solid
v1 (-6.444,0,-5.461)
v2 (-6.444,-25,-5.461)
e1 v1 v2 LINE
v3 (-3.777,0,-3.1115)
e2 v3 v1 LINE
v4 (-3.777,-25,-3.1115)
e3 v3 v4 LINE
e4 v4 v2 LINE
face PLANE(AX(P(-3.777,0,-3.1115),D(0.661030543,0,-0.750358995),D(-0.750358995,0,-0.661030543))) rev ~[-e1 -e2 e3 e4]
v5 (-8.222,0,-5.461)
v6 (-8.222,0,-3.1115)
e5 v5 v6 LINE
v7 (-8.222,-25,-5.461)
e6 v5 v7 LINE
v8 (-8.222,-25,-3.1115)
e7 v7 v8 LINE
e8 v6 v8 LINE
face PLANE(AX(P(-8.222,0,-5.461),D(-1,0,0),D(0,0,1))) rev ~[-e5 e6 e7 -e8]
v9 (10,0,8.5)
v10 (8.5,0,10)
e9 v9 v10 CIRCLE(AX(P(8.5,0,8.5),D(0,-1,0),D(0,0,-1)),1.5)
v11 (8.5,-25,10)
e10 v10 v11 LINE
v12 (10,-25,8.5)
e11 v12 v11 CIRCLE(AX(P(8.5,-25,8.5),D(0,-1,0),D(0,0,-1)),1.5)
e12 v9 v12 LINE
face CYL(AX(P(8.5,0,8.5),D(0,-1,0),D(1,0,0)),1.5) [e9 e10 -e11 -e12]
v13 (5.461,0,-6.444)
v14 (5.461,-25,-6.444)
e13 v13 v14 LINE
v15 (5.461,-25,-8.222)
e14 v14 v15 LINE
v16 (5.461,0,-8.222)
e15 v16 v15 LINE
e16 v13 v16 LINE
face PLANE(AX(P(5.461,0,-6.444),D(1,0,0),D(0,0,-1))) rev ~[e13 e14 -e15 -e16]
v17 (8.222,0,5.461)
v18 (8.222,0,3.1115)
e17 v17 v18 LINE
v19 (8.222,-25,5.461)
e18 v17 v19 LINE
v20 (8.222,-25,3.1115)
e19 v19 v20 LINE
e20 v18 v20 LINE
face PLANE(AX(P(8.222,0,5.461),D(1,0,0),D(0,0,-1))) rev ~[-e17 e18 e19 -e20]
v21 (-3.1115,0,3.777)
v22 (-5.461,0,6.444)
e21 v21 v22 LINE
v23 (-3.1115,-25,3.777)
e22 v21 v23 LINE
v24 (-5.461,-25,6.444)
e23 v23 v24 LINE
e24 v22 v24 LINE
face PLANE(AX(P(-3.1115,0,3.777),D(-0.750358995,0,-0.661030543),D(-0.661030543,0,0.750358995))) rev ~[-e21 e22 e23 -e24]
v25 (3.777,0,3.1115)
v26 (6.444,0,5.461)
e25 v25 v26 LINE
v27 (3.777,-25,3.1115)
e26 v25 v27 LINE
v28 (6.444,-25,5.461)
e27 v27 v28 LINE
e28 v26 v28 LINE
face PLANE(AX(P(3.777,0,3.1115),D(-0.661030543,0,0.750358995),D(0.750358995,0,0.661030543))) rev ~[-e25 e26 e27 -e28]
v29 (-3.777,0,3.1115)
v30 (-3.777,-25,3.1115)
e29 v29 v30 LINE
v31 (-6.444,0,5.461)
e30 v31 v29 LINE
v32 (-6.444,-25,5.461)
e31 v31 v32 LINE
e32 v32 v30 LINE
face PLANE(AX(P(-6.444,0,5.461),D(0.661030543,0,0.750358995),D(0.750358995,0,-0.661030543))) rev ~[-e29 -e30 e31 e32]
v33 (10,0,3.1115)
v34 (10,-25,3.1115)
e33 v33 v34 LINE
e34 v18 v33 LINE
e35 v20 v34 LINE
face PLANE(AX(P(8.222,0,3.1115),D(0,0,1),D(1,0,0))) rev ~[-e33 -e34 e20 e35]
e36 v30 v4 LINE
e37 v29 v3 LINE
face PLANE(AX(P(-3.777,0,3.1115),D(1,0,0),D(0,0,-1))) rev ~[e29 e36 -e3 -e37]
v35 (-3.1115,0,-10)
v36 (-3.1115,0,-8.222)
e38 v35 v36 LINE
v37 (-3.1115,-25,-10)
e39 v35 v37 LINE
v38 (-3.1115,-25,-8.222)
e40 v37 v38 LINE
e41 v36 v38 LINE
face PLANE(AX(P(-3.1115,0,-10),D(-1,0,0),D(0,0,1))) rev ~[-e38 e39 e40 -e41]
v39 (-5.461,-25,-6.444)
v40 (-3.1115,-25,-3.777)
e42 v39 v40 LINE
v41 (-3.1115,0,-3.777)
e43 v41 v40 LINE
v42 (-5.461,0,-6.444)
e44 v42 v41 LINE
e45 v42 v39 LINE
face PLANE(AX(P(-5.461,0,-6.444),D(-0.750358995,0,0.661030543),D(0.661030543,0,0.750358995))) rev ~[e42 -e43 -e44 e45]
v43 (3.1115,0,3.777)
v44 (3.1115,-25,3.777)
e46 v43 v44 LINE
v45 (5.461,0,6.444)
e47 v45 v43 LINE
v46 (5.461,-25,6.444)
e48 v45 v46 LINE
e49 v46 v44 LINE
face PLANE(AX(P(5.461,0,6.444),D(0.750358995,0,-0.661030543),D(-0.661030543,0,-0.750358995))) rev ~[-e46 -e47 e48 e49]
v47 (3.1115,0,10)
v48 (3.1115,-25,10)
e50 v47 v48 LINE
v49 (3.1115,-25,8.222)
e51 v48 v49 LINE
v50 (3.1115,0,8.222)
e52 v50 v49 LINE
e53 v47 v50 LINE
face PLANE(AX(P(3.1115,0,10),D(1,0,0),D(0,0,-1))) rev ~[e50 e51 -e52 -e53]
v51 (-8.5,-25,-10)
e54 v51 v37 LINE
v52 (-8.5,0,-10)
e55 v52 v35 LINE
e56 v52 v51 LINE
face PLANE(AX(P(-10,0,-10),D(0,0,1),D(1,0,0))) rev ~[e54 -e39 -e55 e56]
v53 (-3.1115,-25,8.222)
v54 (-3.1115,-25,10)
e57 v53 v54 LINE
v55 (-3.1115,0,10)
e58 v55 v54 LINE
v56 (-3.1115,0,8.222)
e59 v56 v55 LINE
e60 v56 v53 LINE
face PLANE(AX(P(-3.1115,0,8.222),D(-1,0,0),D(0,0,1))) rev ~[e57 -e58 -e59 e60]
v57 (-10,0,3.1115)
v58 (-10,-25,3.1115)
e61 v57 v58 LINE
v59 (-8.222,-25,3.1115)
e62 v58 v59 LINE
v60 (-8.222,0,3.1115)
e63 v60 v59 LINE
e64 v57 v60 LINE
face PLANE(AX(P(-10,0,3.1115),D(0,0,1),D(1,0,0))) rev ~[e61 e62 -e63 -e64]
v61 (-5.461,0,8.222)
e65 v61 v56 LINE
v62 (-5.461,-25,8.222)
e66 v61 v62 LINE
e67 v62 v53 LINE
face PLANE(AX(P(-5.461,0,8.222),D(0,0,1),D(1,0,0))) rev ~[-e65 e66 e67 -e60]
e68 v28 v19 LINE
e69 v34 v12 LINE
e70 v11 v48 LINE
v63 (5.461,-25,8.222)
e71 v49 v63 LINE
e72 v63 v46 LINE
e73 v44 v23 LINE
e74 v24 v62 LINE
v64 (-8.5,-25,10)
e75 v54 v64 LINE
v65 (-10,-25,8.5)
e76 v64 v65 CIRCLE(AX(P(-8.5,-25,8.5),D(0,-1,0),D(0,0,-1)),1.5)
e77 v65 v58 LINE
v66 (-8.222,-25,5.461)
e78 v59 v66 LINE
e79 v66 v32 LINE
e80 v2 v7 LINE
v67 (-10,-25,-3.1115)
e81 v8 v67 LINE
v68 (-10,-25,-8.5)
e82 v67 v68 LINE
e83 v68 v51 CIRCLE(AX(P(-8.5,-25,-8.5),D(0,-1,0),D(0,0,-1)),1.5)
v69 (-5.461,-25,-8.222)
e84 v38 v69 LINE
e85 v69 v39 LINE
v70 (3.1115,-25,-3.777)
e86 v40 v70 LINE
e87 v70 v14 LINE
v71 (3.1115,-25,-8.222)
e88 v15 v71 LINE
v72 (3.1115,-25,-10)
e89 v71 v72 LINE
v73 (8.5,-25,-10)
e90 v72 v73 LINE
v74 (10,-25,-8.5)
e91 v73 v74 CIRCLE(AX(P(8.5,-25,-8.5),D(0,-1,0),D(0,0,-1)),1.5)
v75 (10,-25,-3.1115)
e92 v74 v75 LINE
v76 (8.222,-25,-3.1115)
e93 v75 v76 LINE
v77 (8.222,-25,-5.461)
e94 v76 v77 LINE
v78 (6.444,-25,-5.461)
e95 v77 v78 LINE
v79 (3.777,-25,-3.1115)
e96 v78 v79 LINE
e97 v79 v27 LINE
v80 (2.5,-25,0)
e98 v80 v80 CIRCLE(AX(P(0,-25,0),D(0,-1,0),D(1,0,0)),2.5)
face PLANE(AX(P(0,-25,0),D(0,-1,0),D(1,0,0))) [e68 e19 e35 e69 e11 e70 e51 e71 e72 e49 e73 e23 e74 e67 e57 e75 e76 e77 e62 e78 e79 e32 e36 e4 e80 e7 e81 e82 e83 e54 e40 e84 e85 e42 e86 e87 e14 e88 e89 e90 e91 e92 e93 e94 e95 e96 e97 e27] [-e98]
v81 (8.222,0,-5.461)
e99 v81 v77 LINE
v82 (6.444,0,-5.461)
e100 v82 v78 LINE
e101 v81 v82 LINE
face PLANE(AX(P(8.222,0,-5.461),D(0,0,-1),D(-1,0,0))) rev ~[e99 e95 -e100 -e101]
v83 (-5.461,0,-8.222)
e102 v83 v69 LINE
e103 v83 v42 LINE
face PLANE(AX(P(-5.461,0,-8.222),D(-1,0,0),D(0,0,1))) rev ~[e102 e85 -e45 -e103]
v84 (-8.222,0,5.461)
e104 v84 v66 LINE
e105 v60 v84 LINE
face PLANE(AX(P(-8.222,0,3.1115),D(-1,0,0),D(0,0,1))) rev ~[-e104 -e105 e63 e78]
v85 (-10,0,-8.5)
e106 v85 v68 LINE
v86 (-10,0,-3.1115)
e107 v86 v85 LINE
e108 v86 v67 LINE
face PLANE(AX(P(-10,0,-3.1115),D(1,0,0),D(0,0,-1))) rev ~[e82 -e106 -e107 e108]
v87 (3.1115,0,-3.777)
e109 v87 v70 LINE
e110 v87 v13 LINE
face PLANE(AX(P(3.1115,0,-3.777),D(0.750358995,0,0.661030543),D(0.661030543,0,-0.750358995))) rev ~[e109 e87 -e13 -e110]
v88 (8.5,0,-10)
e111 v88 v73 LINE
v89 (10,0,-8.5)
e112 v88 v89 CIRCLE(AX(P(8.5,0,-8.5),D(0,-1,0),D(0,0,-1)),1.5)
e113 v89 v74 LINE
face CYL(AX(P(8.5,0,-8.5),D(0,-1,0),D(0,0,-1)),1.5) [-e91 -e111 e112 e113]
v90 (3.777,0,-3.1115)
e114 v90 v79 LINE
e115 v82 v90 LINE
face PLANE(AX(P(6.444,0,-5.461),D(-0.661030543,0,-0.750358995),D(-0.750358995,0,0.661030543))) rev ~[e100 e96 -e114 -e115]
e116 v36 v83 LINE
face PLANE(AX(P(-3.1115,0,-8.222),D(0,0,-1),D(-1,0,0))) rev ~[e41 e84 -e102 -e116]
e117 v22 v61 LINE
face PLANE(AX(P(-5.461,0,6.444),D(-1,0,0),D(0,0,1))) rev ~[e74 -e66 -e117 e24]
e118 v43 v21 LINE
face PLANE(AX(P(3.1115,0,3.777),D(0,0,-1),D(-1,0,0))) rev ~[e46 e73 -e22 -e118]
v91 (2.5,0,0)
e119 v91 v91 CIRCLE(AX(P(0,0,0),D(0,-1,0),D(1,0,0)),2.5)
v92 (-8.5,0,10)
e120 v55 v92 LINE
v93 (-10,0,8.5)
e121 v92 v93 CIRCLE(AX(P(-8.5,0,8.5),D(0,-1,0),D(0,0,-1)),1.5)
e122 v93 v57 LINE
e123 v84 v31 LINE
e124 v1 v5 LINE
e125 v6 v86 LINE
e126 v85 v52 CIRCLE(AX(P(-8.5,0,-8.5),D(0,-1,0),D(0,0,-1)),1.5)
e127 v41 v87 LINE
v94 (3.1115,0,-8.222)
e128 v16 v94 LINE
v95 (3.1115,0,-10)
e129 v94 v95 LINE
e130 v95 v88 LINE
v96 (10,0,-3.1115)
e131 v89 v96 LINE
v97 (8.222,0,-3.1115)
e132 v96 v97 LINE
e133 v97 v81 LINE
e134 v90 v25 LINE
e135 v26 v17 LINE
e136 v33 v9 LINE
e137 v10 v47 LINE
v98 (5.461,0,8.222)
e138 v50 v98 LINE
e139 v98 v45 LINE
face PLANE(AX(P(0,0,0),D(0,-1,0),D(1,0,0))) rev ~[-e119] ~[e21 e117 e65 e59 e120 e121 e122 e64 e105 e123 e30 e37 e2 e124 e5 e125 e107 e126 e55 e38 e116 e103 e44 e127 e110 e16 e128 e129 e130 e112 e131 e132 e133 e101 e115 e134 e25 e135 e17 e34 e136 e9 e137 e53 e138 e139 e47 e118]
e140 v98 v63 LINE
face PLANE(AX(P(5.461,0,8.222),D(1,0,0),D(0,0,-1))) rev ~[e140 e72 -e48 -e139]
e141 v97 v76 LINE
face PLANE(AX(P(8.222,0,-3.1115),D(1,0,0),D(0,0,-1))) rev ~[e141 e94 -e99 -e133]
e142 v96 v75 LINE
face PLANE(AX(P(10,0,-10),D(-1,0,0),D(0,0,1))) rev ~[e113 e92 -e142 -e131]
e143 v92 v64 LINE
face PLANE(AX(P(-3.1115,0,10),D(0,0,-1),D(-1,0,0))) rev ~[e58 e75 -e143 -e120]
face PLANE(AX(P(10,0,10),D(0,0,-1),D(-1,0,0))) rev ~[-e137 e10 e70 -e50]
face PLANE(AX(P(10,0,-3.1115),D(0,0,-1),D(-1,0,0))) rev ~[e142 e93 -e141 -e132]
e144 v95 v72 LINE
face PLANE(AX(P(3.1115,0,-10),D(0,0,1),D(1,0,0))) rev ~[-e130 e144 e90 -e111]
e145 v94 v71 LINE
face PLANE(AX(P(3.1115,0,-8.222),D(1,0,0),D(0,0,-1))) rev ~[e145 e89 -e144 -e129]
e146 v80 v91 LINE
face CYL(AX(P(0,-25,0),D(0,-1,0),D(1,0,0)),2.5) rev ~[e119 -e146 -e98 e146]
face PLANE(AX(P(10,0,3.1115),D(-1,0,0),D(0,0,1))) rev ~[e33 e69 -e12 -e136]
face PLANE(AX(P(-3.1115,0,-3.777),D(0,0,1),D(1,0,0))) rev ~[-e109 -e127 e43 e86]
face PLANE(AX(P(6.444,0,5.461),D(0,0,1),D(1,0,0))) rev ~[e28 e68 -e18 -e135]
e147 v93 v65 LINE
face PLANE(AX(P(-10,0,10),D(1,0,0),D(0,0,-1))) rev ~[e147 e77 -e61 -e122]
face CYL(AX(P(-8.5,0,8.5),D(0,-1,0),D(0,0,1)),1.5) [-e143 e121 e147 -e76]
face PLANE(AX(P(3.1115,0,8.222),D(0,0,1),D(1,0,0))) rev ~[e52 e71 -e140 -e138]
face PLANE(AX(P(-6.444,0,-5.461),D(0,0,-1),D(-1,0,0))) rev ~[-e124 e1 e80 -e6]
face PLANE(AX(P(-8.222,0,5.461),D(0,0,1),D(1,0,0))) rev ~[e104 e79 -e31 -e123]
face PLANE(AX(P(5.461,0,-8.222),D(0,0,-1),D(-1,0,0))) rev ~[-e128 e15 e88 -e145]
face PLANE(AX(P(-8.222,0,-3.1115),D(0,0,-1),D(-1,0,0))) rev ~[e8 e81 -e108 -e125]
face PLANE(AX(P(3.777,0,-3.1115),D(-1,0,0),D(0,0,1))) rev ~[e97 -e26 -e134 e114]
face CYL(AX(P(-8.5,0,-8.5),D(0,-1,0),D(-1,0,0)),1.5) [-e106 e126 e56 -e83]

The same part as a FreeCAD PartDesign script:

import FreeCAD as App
import Part
import Sketcher
from FreeCAD import Vector
Q = App.Units.Quantity


def edges_at(feature, points):
    """Names of the edges that pass closest to the given points."""
    edges = feature.Shape.Edges
    near = lambda p: min(range(len(edges)), key=lambda i: edges[i].distToShape(Part.Vertex(*p))[0])
    return sorted({f"Edge{near(p) + 1}" for p in points})

doc = App.newDocument("Part")
body = doc.addObject("PartDesign::Body", "Body")

# Sketch on XZ plane
sketch1 = body.newObject("Sketcher::SketchObject", "Sketch")
sketch1.AttachmentSupport = (doc.getObject("XZ_Plane"), [""])
sketch1.MapMode = "FlatFace"
sketch1.addGeometry(Part.LineSegment(Vector(10, 3.1, 0), Vector(10, 10, 0)), False)
sketch1.addGeometry(Part.LineSegment(Vector(10, 10, 0), Vector(3.1, 10, 0)), False)
sketch1.addGeometry(Part.LineSegment(Vector(3.1, 10, 0), Vector(3.1, 8.2, 0)), False)
sketch1.addGeometry(Part.LineSegment(Vector(3.1, 8.2, 0), Vector(5.5, 8.2, 0)), False)
sketch1.addGeometry(Part.LineSegment(Vector(5.5, 8.2, 0), Vector(5.5, 6.4, 0)), False)
sketch1.addGeometry(Part.LineSegment(Vector(5.5, 6.4, 0), Vector(3.1, 3.8, 0)), False)
sketch1.addGeometry(Part.LineSegment(Vector(3.1, 3.8, 0), Vector(-3.1, 3.8, 0)), False)
sketch1.addGeometry(Part.LineSegment(Vector(-3.1, 3.8, 0), Vector(-5.5, 6.4, 0)), False)
sketch1.addGeometry(Part.LineSegment(Vector(-5.5, 6.4, 0), Vector(-5.5, 8.2, 0)), False)
sketch1.addGeometry(Part.LineSegment(Vector(-5.5, 8.2, 0), Vector(-3.1, 8.2, 0)), False)
sketch1.addGeometry(Part.LineSegment(Vector(-3.1, 8.2, 0), Vector(-3.1, 10, 0)), False)
sketch1.addGeometry(Part.LineSegment(Vector(-3.1, 10, 0), Vector(-10, 10, 0)), False)
sketch1.addGeometry(Part.LineSegment(Vector(-10, 10, 0), Vector(-10, 3.1, 0)), False)
sketch1.addGeometry(Part.LineSegment(Vector(-10, 3.1, 0), Vector(-8.2, 3.1, 0)), False)
sketch1.addGeometry(Part.LineSegment(Vector(-8.2, 3.1, 0), Vector(-8.2, 5.5, 0)), False)
sketch1.addGeometry(Part.LineSegment(Vector(-8.2, 5.5, 0), Vector(-6.4, 5.5, 0)), False)
sketch1.addGeometry(Part.LineSegment(Vector(-6.4, 5.5, 0), Vector(-3.8, 3.1, 0)), False)
sketch1.addGeometry(Part.LineSegment(Vector(-3.8, 3.1, 0), Vector(-3.8, -3.1, 0)), False)
sketch1.addGeometry(Part.LineSegment(Vector(-3.8, -3.1, 0), Vector(-6.4, -5.5, 0)), False)
sketch1.addGeometry(Part.LineSegment(Vector(-6.4, -5.5, 0), Vector(-8.2, -5.5, 0)), False)
sketch1.addGeometry(Part.LineSegment(Vector(-8.2, -5.5, 0), Vector(-8.2, -3.1, 0)), False)
sketch1.addGeometry(Part.LineSegment(Vector(-8.2, -3.1, 0), Vector(-10, -3.1, 0)), False)
sketch1.addGeometry(Part.LineSegment(Vector(-10, -3.1, 0), Vector(-10, -10, 0)), False)
sketch1.addGeometry(Part.LineSegment(Vector(-10, -10, 0), Vector(-3.1, -10, 0)), False)
sketch1.addGeometry(Part.LineSegment(Vector(-3.1, -10, 0), Vector(-3.1, -8.2, 0)), False)
sketch1.addGeometry(Part.LineSegment(Vector(-3.1, -8.2, 0), Vector(-5.5, -8.2, 0)), False)
sketch1.addGeometry(Part.LineSegment(Vector(-5.5, -8.2, 0), Vector(-5.5, -6.4, 0)), False)
sketch1.addGeometry(Part.LineSegment(Vector(-5.5, -6.4, 0), Vector(-3.1, -3.8, 0)), False)
sketch1.addGeometry(Part.LineSegment(Vector(-3.1, -3.8, 0), Vector(3.1, -3.8, 0)), False)
sketch1.addGeometry(Part.LineSegment(Vector(3.1, -3.8, 0), Vector(5.5, -6.4, 0)), False)
sketch1.addGeometry(Part.LineSegment(Vector(5.5, -6.4, 0), Vector(5.5, -8.2, 0)), False)
sketch1.addGeometry(Part.LineSegment(Vector(5.5, -8.2, 0), Vector(3.1, -8.2, 0)), False)
sketch1.addGeometry(Part.LineSegment(Vector(3.1, -8.2, 0), Vector(3.1, -10, 0)), False)
sketch1.addGeometry(Part.LineSegment(Vector(3.1, -10, 0), Vector(10, -10, 0)), False)
sketch1.addGeometry(Part.LineSegment(Vector(10, -10, 0), Vector(10, -3.1, 0)), False)
sketch1.addGeometry(Part.LineSegment(Vector(10, -3.1, 0), Vector(8.2, -3.1, 0)), False)
sketch1.addGeometry(Part.LineSegment(Vector(8.2, -3.1, 0), Vector(8.2, -5.5, 0)), False)
sketch1.addGeometry(Part.LineSegment(Vector(8.2, -5.5, 0), Vector(6.4, -5.5, 0)), False)
sketch1.addGeometry(Part.LineSegment(Vector(6.4, -5.5, 0), Vector(3.8, -3.1, 0)), False)
sketch1.addGeometry(Part.LineSegment(Vector(3.8, -3.1, 0), Vector(3.8, 3.1, 0)), False)
sketch1.addGeometry(Part.LineSegment(Vector(3.8, 3.1, 0), Vector(6.4, 5.5, 0)), False)
sketch1.addGeometry(Part.LineSegment(Vector(6.4, 5.5, 0), Vector(8.2, 5.5, 0)), False)
sketch1.addGeometry(Part.LineSegment(Vector(8.2, 5.5, 0), Vector(8.2, 3.1, 0)), False)
sketch1.addGeometry(Part.LineSegment(Vector(8.2, 3.1, 0), Vector(10, 3.1, 0)), False)
sketch1.addConstraint(Sketcher.Constraint("Coincident", 0, 2, 1, 1))
sketch1.addConstraint(Sketcher.Constraint("Coincident", 1, 2, 2, 1))
sketch1.addConstraint(Sketcher.Constraint("Coincident", 2, 2, 3, 1))
sketch1.addConstraint(Sketcher.Constraint("Coincident", 3, 2, 4, 1))
sketch1.addConstraint(Sketcher.Constraint("Coincident", 4, 2, 5, 1))
sketch1.addConstraint(Sketcher.Constraint("Coincident", 5, 2, 6, 1))
sketch1.addConstraint(Sketcher.Constraint("Coincident", 6, 2, 7, 1))
sketch1.addConstraint(Sketcher.Constraint("Coincident", 7, 2, 8, 1))
sketch1.addConstraint(Sketcher.Constraint("Coincident", 8, 2, 9, 1))
sketch1.addConstraint(Sketcher.Constraint("Coincident", 9, 2, 10, 1))
sketch1.addConstraint(Sketcher.Constraint("Coincident", 10, 2, 11, 1))
sketch1.addConstraint(Sketcher.Constraint("Coincident", 11, 2, 12, 1))
sketch1.addConstraint(Sketcher.Constraint("Coincident", 12, 2, 13, 1))
sketch1.addConstraint(Sketcher.Constraint("Coincident", 13, 2, 14, 1))
sketch1.addConstraint(Sketcher.Constraint("Coincident", 14, 2, 15, 1))
sketch1.addConstraint(Sketcher.Constraint("Coincident", 15, 2, 16, 1))
sketch1.addConstraint(Sketcher.Constraint("Coincident", 16, 2, 17, 1))
sketch1.addConstraint(Sketcher.Constraint("Coincident", 17, 2, 18, 1))
sketch1.addConstraint(Sketcher.Constraint("Coincident", 18, 2, 19, 1))
sketch1.addConstraint(Sketcher.Constraint("Coincident", 19, 2, 20, 1))
sketch1.addConstraint(Sketcher.Constraint("Coincident", 20, 2, 21, 1))
sketch1.addConstraint(Sketcher.Constraint("Coincident", 21, 2, 22, 1))
sketch1.addConstraint(Sketcher.Constraint("Coincident", 22, 2, 23, 1))
sketch1.addConstraint(Sketcher.Constraint("Coincident", 23, 2, 24, 1))
sketch1.addConstraint(Sketcher.Constraint("Coincident", 24, 2, 25, 1))
sketch1.addConstraint(Sketcher.Constraint("Coincident", 25, 2, 26, 1))
sketch1.addConstraint(Sketcher.Constraint("Coincident", 26, 2, 27, 1))
sketch1.addConstraint(Sketcher.Constraint("Coincident", 27, 2, 28, 1))
sketch1.addConstraint(Sketcher.Constraint("Coincident", 28, 2, 29, 1))
sketch1.addConstraint(Sketcher.Constraint("Coincident", 29, 2, 30, 1))
sketch1.addConstraint(Sketcher.Constraint("Coincident", 30, 2, 31, 1))
sketch1.addConstraint(Sketcher.Constraint("Coincident", 31, 2, 32, 1))
sketch1.addConstraint(Sketcher.Constraint("Coincident", 32, 2, 33, 1))
sketch1.addConstraint(Sketcher.Constraint("Coincident", 33, 2, 34, 1))
sketch1.addConstraint(Sketcher.Constraint("Coincident", 34, 2, 35, 1))
sketch1.addConstraint(Sketcher.Constraint("Coincident", 35, 2, 36, 1))
sketch1.addConstraint(Sketcher.Constraint("Coincident", 36, 2, 37, 1))
sketch1.addConstraint(Sketcher.Constraint("Coincident", 37, 2, 38, 1))
sketch1.addConstraint(Sketcher.Constraint("Coincident", 38, 2, 39, 1))
sketch1.addConstraint(Sketcher.Constraint("Coincident", 39, 2, 40, 1))
sketch1.addConstraint(Sketcher.Constraint("Coincident", 40, 2, 41, 1))
sketch1.addConstraint(Sketcher.Constraint("Coincident", 41, 2, 42, 1))
sketch1.addConstraint(Sketcher.Constraint("Coincident", 42, 2, 43, 1))
sketch1.addConstraint(Sketcher.Constraint("Coincident", 43, 2, 0, 1))
sketch1.addConstraint(Sketcher.Constraint("Vertical", 0))
sketch1.addConstraint(Sketcher.Constraint("Horizontal", 1))
sketch1.addConstraint(Sketcher.Constraint("Vertical", 2))
sketch1.addConstraint(Sketcher.Constraint("Horizontal", 3))
sketch1.addConstraint(Sketcher.Constraint("Vertical", 4))
sketch1.addConstraint(Sketcher.Constraint("Horizontal", 6))
sketch1.addConstraint(Sketcher.Constraint("Vertical", 8))
sketch1.addConstraint(Sketcher.Constraint("Horizontal", 9))
sketch1.addConstraint(Sketcher.Constraint("Vertical", 10))
sketch1.addConstraint(Sketcher.Constraint("Horizontal", 11))
sketch1.addConstraint(Sketcher.Constraint("Vertical", 12))
sketch1.addConstraint(Sketcher.Constraint("Horizontal", 13))
sketch1.addConstraint(Sketcher.Constraint("Vertical", 14))
sketch1.addConstraint(Sketcher.Constraint("Horizontal", 15))
sketch1.addConstraint(Sketcher.Constraint("Vertical", 17))
sketch1.addConstraint(Sketcher.Constraint("Horizontal", 19))
sketch1.addConstraint(Sketcher.Constraint("Vertical", 20))
sketch1.addConstraint(Sketcher.Constraint("Horizontal", 21))
sketch1.addConstraint(Sketcher.Constraint("Vertical", 22))
sketch1.addConstraint(Sketcher.Constraint("Horizontal", 23))
sketch1.addConstraint(Sketcher.Constraint("Vertical", 24))
sketch1.addConstraint(Sketcher.Constraint("Horizontal", 25))
sketch1.addConstraint(Sketcher.Constraint("Vertical", 26))
sketch1.addConstraint(Sketcher.Constraint("Horizontal", 28))
sketch1.addConstraint(Sketcher.Constraint("Vertical", 30))
sketch1.addConstraint(Sketcher.Constraint("Horizontal", 31))
sketch1.addConstraint(Sketcher.Constraint("Vertical", 32))
sketch1.addConstraint(Sketcher.Constraint("Horizontal", 33))
sketch1.addConstraint(Sketcher.Constraint("Vertical", 34))
sketch1.addConstraint(Sketcher.Constraint("Horizontal", 35))
sketch1.addConstraint(Sketcher.Constraint("Vertical", 36))
sketch1.addConstraint(Sketcher.Constraint("Horizontal", 37))
sketch1.addConstraint(Sketcher.Constraint("Vertical", 39))
sketch1.addConstraint(Sketcher.Constraint("Horizontal", 41))
sketch1.addConstraint(Sketcher.Constraint("Vertical", 42))
sketch1.addConstraint(Sketcher.Constraint("Horizontal", 43))
sketch1.addConstraint(Sketcher.Constraint("Symmetric", 0, 2, 22, 2, -1, 1))
sketch1.addConstraint(Sketcher.Constraint("Symmetric", 2, 2, 24, 2, -1, 1))
sketch1.addConstraint(Sketcher.Constraint("Symmetric", 4, 2, 26, 2, -1, 1))
sketch1.addConstraint(Sketcher.Constraint("Symmetric", 5, 2, 27, 2, -1, 1))
sketch1.addConstraint(Sketcher.Constraint("Symmetric", 7, 2, 29, 2, -1, 1))
sketch1.addConstraint(Sketcher.Constraint("Symmetric", 9, 2, 31, 2, -1, 1))
sketch1.addConstraint(Sketcher.Constraint("Symmetric", 11, 2, 33, 2, -1, 1))
sketch1.addConstraint(Sketcher.Constraint("Symmetric", 13, 2, 35, 2, -1, 1))
sketch1.addConstraint(Sketcher.Constraint("Symmetric", 15, 2, 37, 2, -1, 1))
sketch1.addConstraint(Sketcher.Constraint("Symmetric", 16, 2, 38, 2, -1, 1))
sketch1.addConstraint(Sketcher.Constraint("Symmetric", 18, 2, 40, 2, -1, 1))
sketch1.addConstraint(Sketcher.Constraint("Symmetric", 20, 2, 42, 2, -1, 1))
sketch1.addConstraint(Sketcher.Constraint("Symmetric", 4, 2, 7, 2, -2))
sketch1.addConstraint(Sketcher.Constraint("Symmetric", 2, 2, 9, 2, -2))
sketch1.addConstraint(Sketcher.Constraint("Symmetric", 0, 2, 11, 2, -2))
sketch1.addConstraint(Sketcher.Constraint("Symmetric", 20, 2, 35, 2, -2))
sketch1.addConstraint(Sketcher.Constraint("Symmetric", 18, 2, 37, 2, -2))
sketch1.addConstraint(Sketcher.Constraint("Perpendicular", 5, 16))
sketch1.addConstraint(Sketcher.Constraint("Perpendicular", 7, 18))
sketch1.addConstraint(Sketcher.Constraint("Perpendicular", 18, 29))
sketch1.addConstraint(Sketcher.Constraint("Perpendicular", 29, 40))
sketch1.addConstraint(Sketcher.Constraint("Horizontal", 13, 2, 16, 2))
sketch1.addConstraint(Sketcher.Constraint("Horizontal", 17, 2, 20, 2))
sketch1.addConstraint(Sketcher.Constraint("Vertical", 2, 2, 5, 2))
sketch1.addConstraint(Sketcher.Constraint("Equal", 13, 15))
sketch1.addConstraint(Sketcher.Constraint("Equal", 33, 0))
sketch1.addConstraint(Sketcher.Constraint("Equal", 43, 2))
sketch1.addConstraint(Sketcher.Constraint("Equal", 2, 4))
sketch1.addConstraint(Sketcher.Constraint("Equal", 31, 14))
sketch1.addConstraint(Sketcher.Constraint("Equal", 28, 17))
sketch1.addConstraint(Sketcher.Constraint("DistanceX", -1, 1, 0, 2, Q("10 mm")))
sketch1.addConstraint(Sketcher.Constraint("DistanceX", 6, 2, 6, 1, Q("6.223 mm")))
sketch1.addConstraint(Sketcher.Constraint("DistanceX", 13, 1, 13, 2, Q("1.778 mm")))
sketch1.addConstraint(Sketcher.Constraint("DistanceX", 3, 1, 3, 2, Q("2.3495 mm")))
sketch1.addConstraint(Sketcher.Constraint("DistanceY", -1, 1, 5, 2, Q("3.777 mm")))
pad1 = body.newObject("PartDesign::Pad", "Pad")
pad1.Profile = sketch1
pad1.Length = 25
doc.recompute()

fillet = body.newObject("PartDesign::Fillet", "Fillet")
fillet.Base = (pad1, edges_at(pad1, [
    (-10, -12.5, 10),
    (10, -12.5, 10),
    (10, -12.5, -10),
    (-10, -12.5, -10),
]))
fillet.Radius = 1.5

# Sketch on XZ plane
sketch2 = body.newObject("Sketcher::SketchObject", "Sketch001")
sketch2.AttachmentSupport = (doc.getObject("XZ_Plane"), [""])
sketch2.MapMode = "FlatFace"
sketch2.AttachmentOffset = App.Placement(Vector(0, 0, 25), App.Rotation())
sketch2.addGeometry(Part.Circle(Vector(0, 0, 0), Vector(0, 0, 1), 2.5), False)
sketch2.addConstraint(Sketcher.Constraint("Coincident", 0, 3, -1, 1))
sketch2.addConstraint(Sketcher.Constraint("Diameter", 0, Q("5 mm")))
pocket1 = body.newObject("PartDesign::Pocket", "Pocket")
pocket1.Profile = sketch2
pocket1.Type = "ThroughAll"

doc.recompute()
